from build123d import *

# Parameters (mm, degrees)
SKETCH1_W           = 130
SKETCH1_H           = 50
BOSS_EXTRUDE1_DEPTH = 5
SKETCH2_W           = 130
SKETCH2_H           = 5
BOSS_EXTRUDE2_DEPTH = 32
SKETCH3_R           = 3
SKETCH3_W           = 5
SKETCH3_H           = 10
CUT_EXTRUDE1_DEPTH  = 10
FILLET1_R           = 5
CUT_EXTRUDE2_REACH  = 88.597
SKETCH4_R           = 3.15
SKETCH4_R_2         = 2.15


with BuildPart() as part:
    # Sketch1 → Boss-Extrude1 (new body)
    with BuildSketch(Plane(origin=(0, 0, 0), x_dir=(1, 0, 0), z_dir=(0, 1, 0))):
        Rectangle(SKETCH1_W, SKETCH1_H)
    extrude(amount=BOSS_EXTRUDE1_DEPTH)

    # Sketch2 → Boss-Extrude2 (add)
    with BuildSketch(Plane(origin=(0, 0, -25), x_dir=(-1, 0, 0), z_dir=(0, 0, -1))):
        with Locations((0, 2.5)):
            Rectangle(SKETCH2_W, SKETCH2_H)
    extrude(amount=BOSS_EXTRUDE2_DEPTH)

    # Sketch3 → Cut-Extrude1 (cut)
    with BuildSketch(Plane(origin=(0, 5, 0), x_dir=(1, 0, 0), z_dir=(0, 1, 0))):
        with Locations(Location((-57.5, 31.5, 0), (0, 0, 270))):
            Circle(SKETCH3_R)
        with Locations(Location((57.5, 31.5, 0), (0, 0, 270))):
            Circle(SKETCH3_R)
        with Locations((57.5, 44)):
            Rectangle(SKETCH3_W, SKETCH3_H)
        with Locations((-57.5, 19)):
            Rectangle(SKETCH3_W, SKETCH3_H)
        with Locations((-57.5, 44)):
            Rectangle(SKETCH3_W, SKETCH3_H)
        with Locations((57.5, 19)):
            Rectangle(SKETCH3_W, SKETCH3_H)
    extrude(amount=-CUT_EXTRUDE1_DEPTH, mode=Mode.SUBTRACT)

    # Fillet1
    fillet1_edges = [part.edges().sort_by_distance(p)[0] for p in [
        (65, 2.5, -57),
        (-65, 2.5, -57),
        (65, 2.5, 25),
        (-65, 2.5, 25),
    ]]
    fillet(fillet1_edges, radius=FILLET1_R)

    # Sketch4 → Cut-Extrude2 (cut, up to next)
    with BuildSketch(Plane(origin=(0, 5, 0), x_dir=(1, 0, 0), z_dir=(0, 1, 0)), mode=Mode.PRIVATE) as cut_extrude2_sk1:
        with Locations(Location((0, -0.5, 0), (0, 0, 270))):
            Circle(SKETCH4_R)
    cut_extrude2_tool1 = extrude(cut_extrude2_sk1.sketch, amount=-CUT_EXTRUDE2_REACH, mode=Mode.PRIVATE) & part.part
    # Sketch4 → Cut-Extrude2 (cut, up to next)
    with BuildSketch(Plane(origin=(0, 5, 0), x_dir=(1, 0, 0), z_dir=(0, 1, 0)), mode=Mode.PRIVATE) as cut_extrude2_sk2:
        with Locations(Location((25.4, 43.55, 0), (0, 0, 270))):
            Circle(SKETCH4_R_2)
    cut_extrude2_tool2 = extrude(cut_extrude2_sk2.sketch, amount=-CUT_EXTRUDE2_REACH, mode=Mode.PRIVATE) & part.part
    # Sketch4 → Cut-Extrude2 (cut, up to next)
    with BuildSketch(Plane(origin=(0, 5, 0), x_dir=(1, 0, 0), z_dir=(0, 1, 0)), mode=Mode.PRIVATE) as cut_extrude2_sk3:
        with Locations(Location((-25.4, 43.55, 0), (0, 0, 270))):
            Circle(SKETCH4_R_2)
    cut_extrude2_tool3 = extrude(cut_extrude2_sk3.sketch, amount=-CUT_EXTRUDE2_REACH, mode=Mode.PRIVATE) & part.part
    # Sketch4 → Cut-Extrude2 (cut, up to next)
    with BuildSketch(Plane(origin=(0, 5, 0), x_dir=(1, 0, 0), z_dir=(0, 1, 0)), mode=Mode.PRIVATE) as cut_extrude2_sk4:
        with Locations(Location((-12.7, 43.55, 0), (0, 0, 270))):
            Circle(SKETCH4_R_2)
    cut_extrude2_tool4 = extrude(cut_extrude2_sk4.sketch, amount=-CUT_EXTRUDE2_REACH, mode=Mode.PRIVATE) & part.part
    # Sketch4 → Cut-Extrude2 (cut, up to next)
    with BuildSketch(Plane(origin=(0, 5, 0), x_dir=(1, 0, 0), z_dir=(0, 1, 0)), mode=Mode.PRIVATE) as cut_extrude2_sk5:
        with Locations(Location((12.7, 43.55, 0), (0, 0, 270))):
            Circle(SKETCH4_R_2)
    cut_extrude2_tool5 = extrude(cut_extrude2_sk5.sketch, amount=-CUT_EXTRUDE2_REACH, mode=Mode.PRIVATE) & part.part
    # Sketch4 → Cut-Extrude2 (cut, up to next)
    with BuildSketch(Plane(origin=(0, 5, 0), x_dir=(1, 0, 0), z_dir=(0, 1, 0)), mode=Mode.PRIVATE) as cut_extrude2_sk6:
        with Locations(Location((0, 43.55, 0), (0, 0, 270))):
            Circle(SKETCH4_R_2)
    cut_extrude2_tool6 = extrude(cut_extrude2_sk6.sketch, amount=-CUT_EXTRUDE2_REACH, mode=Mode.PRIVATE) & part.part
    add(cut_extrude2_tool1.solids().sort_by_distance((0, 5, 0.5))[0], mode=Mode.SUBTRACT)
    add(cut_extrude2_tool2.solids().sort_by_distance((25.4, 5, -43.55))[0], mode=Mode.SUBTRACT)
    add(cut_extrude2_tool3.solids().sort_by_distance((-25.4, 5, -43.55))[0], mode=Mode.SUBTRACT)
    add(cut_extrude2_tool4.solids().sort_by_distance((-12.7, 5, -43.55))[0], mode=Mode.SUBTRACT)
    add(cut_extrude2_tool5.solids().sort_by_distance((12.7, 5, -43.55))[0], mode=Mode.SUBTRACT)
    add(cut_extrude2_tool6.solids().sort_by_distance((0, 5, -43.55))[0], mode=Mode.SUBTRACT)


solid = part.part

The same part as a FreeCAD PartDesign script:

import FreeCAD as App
import Part
import Sketcher
from FreeCAD import Vector
Q = App.Units.Quantity


def edges_at(feature, points):
    """Names of the edges that pass closest to the given points."""
    edges = feature.Shape.Edges
    near = lambda p: min(range(len(edges)), key=lambda i: edges[i].distToShape(Part.Vertex(*p))[0])
    return sorted({f"Edge{near(p) + 1}" for p in points})

doc = App.newDocument("Part")
params = doc.addObject("Spreadsheet::Sheet", "Params")
for row, (alias, value) in enumerate([
    ("sketch1_width", "130 mm"),
    ("sketch1_height", "50 mm"),
    ("pad1_length", "5 mm"),
    ("sketch2_width", "130 mm"),
    ("sketch2_height", "5 mm"),
    ("pad2_length", "32 mm"),
    ("sketch3_diameter", "6 mm"),
    ("sketch3_width", "5 mm"),
    ("sketch3_height", "10 mm"),
    ("pocket1_length", "10 mm"),
    ("fillet_radius", "5 mm"),
    ("sketch4_diameter", "6.3 mm"),
    ("sketch5_diameter", "4.3 mm"),
    ("sketch6_diameter", "4.3 mm"),
    ("sketch7_diameter", "4.3 mm"),
    ("sketch8_diameter", "4.3 mm"),
    ("sketch9_diameter", "4.3 mm"),
], start=1):
    params.set(f"A{row}", alias)
    params.set(f"B{row}", "=" + value)
    params.setAlias(f"B{row}", alias)

body = doc.addObject("PartDesign::Body", "Body")

sketch1 = body.newObject("Sketcher::SketchObject", "Sketch")
sketch1.AttachmentSupport = (doc.getObject("XZ_Plane"), [""])
sketch1.MapMode = "FlatFace"
sketch1.addGeometry(Part.LineSegment(Vector(-65, -25, 0), Vector(-65, 25, 0)), False)
sketch1.addGeometry(Part.LineSegment(Vector(-65, 25, 0), Vector(65, 25, 0)), False)
sketch1.addGeometry(Part.LineSegment(Vector(65, 25, 0), Vector(65, -25, 0)), False)
sketch1.addGeometry(Part.LineSegment(Vector(65, -25, 0), Vector(-65, -25, 0)), False)
sketch1.addConstraint(Sketcher.Constraint("Coincident", 0, 2, 1, 1))
sketch1.addConstraint(Sketcher.Constraint("Coincident", 1, 2, 2, 1))
sketch1.addConstraint(Sketcher.Constraint("Coincident", 2, 2, 3, 1))
sketch1.addConstraint(Sketcher.Constraint("Coincident", 3, 2, 0, 1))
sketch1.addConstraint(Sketcher.Constraint("Vertical", 0))
sketch1.addConstraint(Sketcher.Constraint("Horizontal", 1))
sketch1.addConstraint(Sketcher.Constraint("Vertical", 2))
sketch1.addConstraint(Sketcher.Constraint("Horizontal", 3))
sketch1.addConstraint(Sketcher.Constraint("Symmetric", 0, 2, 2, 2, -1, 1))
sketch1.addConstraint(Sketcher.Constraint("DistanceX", 1, 1, 1, 2, Q("130 mm")))
sketch1.addConstraint(Sketcher.Constraint("DistanceY", 0, 1, 0, 2, Q("50 mm")))
sketch1.setExpression("Constraints[9]", "Params.sketch1_width")
sketch1.setExpression("Constraints[10]", "Params.sketch1_height")
pad1 = body.newObject("PartDesign::Pad", "Pad")
pad1.Profile = sketch1
pad1.setExpression("Length", "Params.pad1_length")
pad1.Reversed = True

sketch2 = body.newObject("Sketcher::SketchObject", "Sketch001")
sketch2.AttachmentSupport = (doc.getObject("XY_Plane"), [""])
sketch2.MapMode = "FlatFace"
sketch2.AttachmentOffset = App.Placement(Vector(0, 0, -25), App.Rotation())
sketch2.addGeometry(Part.LineSegment(Vector(65, 5, 0), Vector(65, 0, 0)), False)
sketch2.addGeometry(Part.LineSegment(Vector(65, 0, 0), Vector(-65, 0, 0)), False)
sketch2.addGeometry(Part.LineSegment(Vector(-65, 0, 0), Vector(-65, 5, 0)), False)
sketch2.addGeometry(Part.LineSegment(Vector(-65, 5, 0), Vector(65, 5, 0)), False)
sketch2.addConstraint(Sketcher.Constraint("Coincident", 0, 2, 1, 1))
sketch2.addConstraint(Sketcher.Constraint("Coincident", 1, 2, 2, 1))
sketch2.addConstraint(Sketcher.Constraint("Coincident", 2, 2, 3, 1))
sketch2.addConstraint(Sketcher.Constraint("Coincident", 3, 2, 0, 1))
sketch2.addConstraint(Sketcher.Constraint("Vertical", 0))
sketch2.addConstraint(Sketcher.Constraint("Horizontal", 1))
sketch2.addConstraint(Sketcher.Constraint("Vertical", 2))
sketch2.addConstraint(Sketcher.Constraint("Horizontal", 3))
sketch2.addConstraint(Sketcher.Constraint("Symmetric", 0, 2, 1, 2, -1, 1))
sketch2.addConstraint(Sketcher.Constraint("DistanceX", 1, 2, 1, 1, Q("130 mm")))
sketch2.addConstraint(Sketcher.Constraint("DistanceY", 0, 2, 0, 1, Q("5 mm")))
sketch2.setExpression("Constraints[9]", "Params.sketch2_width")
sketch2.setExpression("Constraints[10]", "Params.sketch2_height")
pad2 = body.newObject("PartDesign::Pad", "Pad001")
pad2.Profile = sketch2
pad2.setExpression("Length", "Params.pad2_length")
pad2.Reversed = True

sketch3 = body.newObject("Sketcher::SketchObject", "Sketch002")
sketch3.AttachmentSupport = (doc.getObject("XZ_Plane"), [""])
sketch3.MapMode = "FlatFace"
sketch3.AttachmentOffset = App.Placement(Vector(0, 0, -5), App.Rotation())
sketch3.addGeometry(Part.Circle(Vector(-57.5, -31.5, 0), Vector(0, 0, 1), 3), False)
sketch3.addGeometry(Part.Circle(Vector(57.5, -31.5, 0), Vector(0, 0, 1), 3), False)
sketch3.addGeometry(Part.LineSegment(Vector(55, -49, 0), Vector(55, -39, 0)), False)
sketch3.addGeometry(Part.LineSegment(Vector(55, -39, 0), Vector(60, -39, 0)), False)
sketch3.addGeometry(Part.LineSegment(Vector(60, -39, 0), Vector(60, -49, 0)), False)
sketch3.addGeometry(Part.LineSegment(Vector(60, -49, 0), Vector(55, -49, 0)), False)
sketch3.addGeometry(Part.LineSegment(Vector(-60, -24, 0), Vector(-60, -14, 0)), False)
sketch3.addGeometry(Part.LineSegment(Vector(-60, -14, 0), Vector(-55, -14, 0)), False)
sketch3.addGeometry(Part.LineSegment(Vector(-55, -14, 0), Vector(-55, -24, 0)), False)
sketch3.addGeometry(Part.LineSegment(Vector(-55, -24, 0), Vector(-60, -24, 0)), False)
sketch3.addGeometry(Part.LineSegment(Vector(-60, -49, 0), Vector(-60, -39, 0)), False)
sketch3.addGeometry(Part.LineSegment(Vector(-60, -39, 0), Vector(-55, -39, 0)), False)
sketch3.addGeometry(Part.LineSegment(Vector(-55, -39, 0), Vector(-55, -49, 0)), False)
sketch3.addGeometry(Part.LineSegment(Vector(-55, -49, 0), Vector(-60, -49, 0)), False)
sketch3.addGeometry(Part.LineSegment(Vector(55, -24, 0), Vector(55, -14, 0)), False)
sketch3.addGeometry(Part.LineSegment(Vector(55, -14, 0), Vector(60, -14, 0)), False)
sketch3.addGeometry(Part.LineSegment(Vector(60, -14, 0), Vector(60, -24, 0)), False)
sketch3.addGeometry(Part.LineSegment(Vector(60, -24, 0), Vector(55, -24, 0)), False)
sketch3.addConstraint(Sketcher.Constraint("Coincident", 2, 2, 3, 1))
sketch3.addConstraint(Sketcher.Constraint("Coincident", 3, 2, 4, 1))
sketch3.addConstraint(Sketcher.Constraint("Coincident", 4, 2, 5, 1))
sketch3.addConstraint(Sketcher.Constraint("Coincident", 5, 2, 2, 1))
sketch3.addConstraint(Sketcher.Constraint("Coincident", 6, 2, 7, 1))
sketch3.addConstraint(Sketcher.Constraint("Coincident", 7, 2, 8, 1))
sketch3.addConstraint(Sketcher.Constraint("Coincident", 8, 2, 9, 1))
sketch3.addConstraint(Sketcher.Constraint("Coincident", 9, 2, 6, 1))
sketch3.addConstraint(Sketcher.Constraint("Coincident", 10, 2, 11, 1))
sketch3.addConstraint(Sketcher.Constraint("Coincident", 11, 2, 12, 1))
sketch3.addConstraint(Sketcher.Constraint("Coincident", 12, 2, 13, 1))
sketch3.addConstraint(Sketcher.Constraint("Coincident", 13, 2, 10, 1))
sketch3.addConstraint(Sketcher.Constraint("Coincident", 14, 2, 15, 1))
sketch3.addConstraint(Sketcher.Constraint("Coincident", 15, 2, 16, 1))
sketch3.addConstraint(Sketcher.Constraint("Coincident", 16, 2, 17, 1))
sketch3.addConstraint(Sketcher.Constraint("Coincident", 17, 2, 14, 1))
sketch3.addConstraint(Sketcher.Constraint("Vertical", 2))
sketch3.addConstraint(Sketcher.Constraint("Horizontal", 3))
sketch3.addConstraint(Sketcher.Constraint("Vertical", 4))
sketch3.addConstraint(Sketcher.Constraint("Horizontal", 5))
sketch3.addConstraint(Sketcher.Constraint("Vertical", 6))
sketch3.addConstraint(Sketcher.Constraint("Horizontal", 7))
sketch3.addConstraint(Sketcher.Constraint("Vertical", 8))
sketch3.addConstraint(Sketcher.Constraint("Horizontal", 9))
sketch3.addConstraint(Sketcher.Constraint("Vertical", 10))
sketch3.addConstraint(Sketcher.Constraint("Horizontal", 11))
sketch3.addConstraint(Sketcher.Constraint("Vertical", 12))
sketch3.addConstraint(Sketcher.Constraint("Horizontal", 13))
sketch3.addConstraint(Sketcher.Constraint("Vertical", 14))
sketch3.addConstraint(Sketcher.Constraint("Horizontal", 15))
sketch3.addConstraint(Sketcher.Constraint("Vertical", 16))
sketch3.addConstraint(Sketcher.Constraint("Horizontal", 17))
sketch3.addConstraint(Sketcher.Constraint("Equal", 0, 1))
sketch3.addConstraint(Sketcher.Constraint("Symmetric", 0, 3, 1, 3, -2))
sketch3.addConstraint(Sketcher.Constraint("Symmetric", 3, 2, 10, 2, -2))
sketch3.addConstraint(Sketcher.Constraint("Symmetric", 5, 2, 12, 2, -2))
sketch3.addConstraint(Sketcher.Constraint("Symmetric", 7, 2, 14, 2, -2))
sketch3.addConstraint(Sketcher.Constraint("Symmetric", 9, 2, 16, 2, -2))
sketch3.addConstraint(Sketcher.Constraint("Vertical", 9, 2, 10, 2))
sketch3.addConstraint(Sketcher.Constraint("Vertical", 8, 2, 11, 2))
sketch3.addConstraint(Sketcher.Constraint("Equal", 4, 6))
sketch3.addConstraint(Sketcher.Constraint("Diameter", 0, Q("6 mm")))
sketch3.addConstraint(Sketcher.Constraint("DistanceX", 3, 1, 3, 2, Q("5 mm")))
sketch3.addConstraint(Sketcher.Constraint("DistanceY", 2, 1, 2, 2, Q("10 mm")))
sketch3.addConstraint(Sketcher.Constraint("DistanceX", -1, 1, 2, 2, Q("55 mm")))
sketch3.addConstraint(Sketcher.Constraint("DistanceY", 2, 2, -1, 1, Q("39 mm")))
sketch3.addConstraint(Sketcher.Constraint("DistanceY", 6, 2, -1, 1, Q("14 mm")))
sketch3.addConstraint(Sketcher.Constraint("DistanceX", 0, 3, 1, 3, Q("115 mm")))
sketch3.addConstraint(Sketcher.Constraint("DistanceY", 0, 3, -1, 1, Q("31.5 mm")))
sketch3.setExpression("Constraints[41]", "Params.sketch3_diameter")
sketch3.setExpression("Constraints[42]", "Params.sketch3_width")
sketch3.setExpression("Constraints[43]", "Params.sketch3_height")
pocket1 = body.newObject("PartDesign::Pocket", "Pocket")
pocket1.Profile = sketch3
pocket1.setExpression("Length", "Params.pocket1_length")
pocket1.Reversed = True
doc.recompute()

fillet = body.newObject("PartDesign::Fillet", "Fillet")
fillet.Base = (pocket1, edges_at(pocket1, [
    (65, 2.5, -57),
    (-65, 2.5, -57),
    (65, 2.5, 25),
    (-65, 2.5, 25),
]))
fillet.setExpression("Radius", "Params.fillet_radius")

sketch4 = body.newObject("Sketcher::SketchObject", "Sketch003")
sketch4.AttachmentSupport = (doc.getObject("XZ_Plane"), [""])
sketch4.MapMode = "FlatFace"
sketch4.AttachmentOffset = App.Placement(Vector(0, 0, -5), App.Rotation())
sketch4.addGeometry(Part.Circle(Vector(0, 0.5, 0), Vector(0, 0, 1), 3.1), False)
sketch4.addConstraint(Sketcher.Constraint("PointOnObject", 0, 3, -2))
sketch4.addConstraint(Sketcher.Constraint("Diameter", 0, Q("6.3 mm")))
sketch4.addConstraint(Sketcher.Constraint("DistanceY", -1, 1, 0, 3, Q("0.5 mm")))
sketch4.setExpression("Constraints[1]", "Params.sketch4_diameter")
pocket2 = body.newObject("PartDesign::Pocket", "Pocket001")
pocket2.Profile = sketch4
pocket2.Type = "UpToFirst"
pocket2.Reversed = True

sketch5 = body.newObject("Sketcher::SketchObject", "Sketch004")
sketch5.AttachmentSupport = (doc.getObject("XZ_Plane"), [""])
sketch5.MapMode = "FlatFace"
sketch5.AttachmentOffset = App.Placement(Vector(0, 0, -5), App.Rotation())
sketch5.addGeometry(Part.Circle(Vector(25.4, -43.5, 0), Vector(0, 0, 1), 2.1), False)
sketch5.addConstraint(Sketcher.Constraint("Diameter", 0, Q("4.3 mm")))
sketch5.addConstraint(Sketcher.Constraint("DistanceX", -1, 1, 0, 3, Q("25.4 mm")))
sketch5.addConstraint(Sketcher.Constraint("DistanceY", 0, 3, -1, 1, Q("43.55 mm")))
sketch5.setExpression("Constraints[0]", "Params.sketch5_diameter")
pocket3 = body.newObject("PartDesign::Pocket", "Pocket002")
pocket3.Profile = sketch5
pocket3.Type = "UpToFirst"
pocket3.Reversed = True

sketch6 = body.newObject("Sketcher::SketchObject", "Sketch005")
sketch6.AttachmentSupport = (doc.getObject("XZ_Plane"), [""])
sketch6.MapMode = "FlatFace"
sketch6.AttachmentOffset = App.Placement(Vector(0, 0, -5), App.Rotation())
sketch6.addGeometry(Part.Circle(Vector(-25.4, -43.5, 0), Vector(0, 0, 1), 2.1), False)
sketch6.addConstraint(Sketcher.Constraint("Diameter", 0, Q("4.3 mm")))
sketch6.addConstraint(Sketcher.Constraint("DistanceX", 0, 3, -1, 1, Q("25.4 mm")))
sketch6.addConstraint(Sketcher.Constraint("DistanceY", 0, 3, -1, 1, Q("43.55 mm")))
sketch6.setExpression("Constraints[0]", "Params.sketch6_diameter")
pocket4 = body.newObject("PartDesign::Pocket", "Pocket003")
pocket4.Profile = sketch6
pocket4.Type = "UpToFirst"
pocket4.Reversed = True

sketch7 = body.newObject("Sketcher::SketchObject", "Sketch006")
sketch7.AttachmentSupport = (doc.getObject("XZ_Plane"), [""])
sketch7.MapMode = "FlatFace"
sketch7.AttachmentOffset = App.Placement(Vector(0, 0, -5), App.Rotation())
sketch7.addGeometry(Part.Circle(Vector(-12.7, -43.5, 0), Vector(0, 0, 1), 2.1), False)
sketch7.addConstraint(Sketcher.Constraint("Diameter", 0, Q("4.3 mm")))
sketch7.addConstraint(Sketcher.Constraint("DistanceX", 0, 3, -1, 1, Q("12.7 mm")))
sketch7.addConstraint(Sketcher.Constraint("DistanceY", 0, 3, -1, 1, Q("43.55 mm")))
sketch7.setExpression("Constraints[0]", "Params.sketch7_diameter")
pocket5 = body.newObject("PartDesign::Pocket", "Pocket004")
pocket5.Profile = sketch7
pocket5.Type = "UpToFirst"
pocket5.Reversed = True

sketch8 = body.newObject("Sketcher::SketchObject", "Sketch007")
sketch8.AttachmentSupport = (doc.getObject("XZ_Plane"), [""])
sketch8.MapMode = "FlatFace"
sketch8.AttachmentOffset = App.Placement(Vector(0, 0, -5), App.Rotation())
sketch8.addGeometry(Part.Circle(Vector(12.7, -43.5, 0), Vector(0, 0, 1), 2.1), False)
sketch8.addConstraint(Sketcher.Constraint("Diameter", 0, Q("4.3 mm")))
sketch8.addConstraint(Sketcher.Constraint("DistanceX", -1, 1, 0, 3, Q("12.7 mm")))
sketch8.addConstraint(Sketcher.Constraint("DistanceY", 0, 3, -1, 1, Q("43.55 mm")))
sketch8.setExpression("Constraints[0]", "Params.sketch8_diameter")
pocket6 = body.newObject("PartDesign::Pocket", "Pocket005")
pocket6.Profile = sketch8
pocket6.Type = "UpToFirst"
pocket6.Reversed = True

sketch9 = body.newObject("Sketcher::SketchObject", "Sketch008")
sketch9.AttachmentSupport = (doc.getObject("XZ_Plane"), [""])
sketch9.MapMode = "FlatFace"
sketch9.AttachmentOffset = App.Placement(Vector(0, 0, -5), App.Rotation())
sketch9.addGeometry(Part.Circle(Vector(0, -43.5, 0), Vector(0, 0, 1), 2.1), False)
sketch9.addConstraint(Sketcher.Constraint("PointOnObject", 0, 3, -2))
sketch9.addConstraint(Sketcher.Constraint("Diameter", 0, Q("4.3 mm")))
sketch9.addConstraint(Sketcher.Constraint("DistanceY", 0, 3, -1, 1, Q("43.55 mm")))
sketch9.setExpression("Constraints[1]", "Params.sketch9_diameter")
pocket7 = body.newObject("PartDesign::Pocket", "Pocket006")
pocket7.Profile = sketch9
pocket7.Type = "UpToFirst"
pocket7.Reversed = True

doc.recompute()
